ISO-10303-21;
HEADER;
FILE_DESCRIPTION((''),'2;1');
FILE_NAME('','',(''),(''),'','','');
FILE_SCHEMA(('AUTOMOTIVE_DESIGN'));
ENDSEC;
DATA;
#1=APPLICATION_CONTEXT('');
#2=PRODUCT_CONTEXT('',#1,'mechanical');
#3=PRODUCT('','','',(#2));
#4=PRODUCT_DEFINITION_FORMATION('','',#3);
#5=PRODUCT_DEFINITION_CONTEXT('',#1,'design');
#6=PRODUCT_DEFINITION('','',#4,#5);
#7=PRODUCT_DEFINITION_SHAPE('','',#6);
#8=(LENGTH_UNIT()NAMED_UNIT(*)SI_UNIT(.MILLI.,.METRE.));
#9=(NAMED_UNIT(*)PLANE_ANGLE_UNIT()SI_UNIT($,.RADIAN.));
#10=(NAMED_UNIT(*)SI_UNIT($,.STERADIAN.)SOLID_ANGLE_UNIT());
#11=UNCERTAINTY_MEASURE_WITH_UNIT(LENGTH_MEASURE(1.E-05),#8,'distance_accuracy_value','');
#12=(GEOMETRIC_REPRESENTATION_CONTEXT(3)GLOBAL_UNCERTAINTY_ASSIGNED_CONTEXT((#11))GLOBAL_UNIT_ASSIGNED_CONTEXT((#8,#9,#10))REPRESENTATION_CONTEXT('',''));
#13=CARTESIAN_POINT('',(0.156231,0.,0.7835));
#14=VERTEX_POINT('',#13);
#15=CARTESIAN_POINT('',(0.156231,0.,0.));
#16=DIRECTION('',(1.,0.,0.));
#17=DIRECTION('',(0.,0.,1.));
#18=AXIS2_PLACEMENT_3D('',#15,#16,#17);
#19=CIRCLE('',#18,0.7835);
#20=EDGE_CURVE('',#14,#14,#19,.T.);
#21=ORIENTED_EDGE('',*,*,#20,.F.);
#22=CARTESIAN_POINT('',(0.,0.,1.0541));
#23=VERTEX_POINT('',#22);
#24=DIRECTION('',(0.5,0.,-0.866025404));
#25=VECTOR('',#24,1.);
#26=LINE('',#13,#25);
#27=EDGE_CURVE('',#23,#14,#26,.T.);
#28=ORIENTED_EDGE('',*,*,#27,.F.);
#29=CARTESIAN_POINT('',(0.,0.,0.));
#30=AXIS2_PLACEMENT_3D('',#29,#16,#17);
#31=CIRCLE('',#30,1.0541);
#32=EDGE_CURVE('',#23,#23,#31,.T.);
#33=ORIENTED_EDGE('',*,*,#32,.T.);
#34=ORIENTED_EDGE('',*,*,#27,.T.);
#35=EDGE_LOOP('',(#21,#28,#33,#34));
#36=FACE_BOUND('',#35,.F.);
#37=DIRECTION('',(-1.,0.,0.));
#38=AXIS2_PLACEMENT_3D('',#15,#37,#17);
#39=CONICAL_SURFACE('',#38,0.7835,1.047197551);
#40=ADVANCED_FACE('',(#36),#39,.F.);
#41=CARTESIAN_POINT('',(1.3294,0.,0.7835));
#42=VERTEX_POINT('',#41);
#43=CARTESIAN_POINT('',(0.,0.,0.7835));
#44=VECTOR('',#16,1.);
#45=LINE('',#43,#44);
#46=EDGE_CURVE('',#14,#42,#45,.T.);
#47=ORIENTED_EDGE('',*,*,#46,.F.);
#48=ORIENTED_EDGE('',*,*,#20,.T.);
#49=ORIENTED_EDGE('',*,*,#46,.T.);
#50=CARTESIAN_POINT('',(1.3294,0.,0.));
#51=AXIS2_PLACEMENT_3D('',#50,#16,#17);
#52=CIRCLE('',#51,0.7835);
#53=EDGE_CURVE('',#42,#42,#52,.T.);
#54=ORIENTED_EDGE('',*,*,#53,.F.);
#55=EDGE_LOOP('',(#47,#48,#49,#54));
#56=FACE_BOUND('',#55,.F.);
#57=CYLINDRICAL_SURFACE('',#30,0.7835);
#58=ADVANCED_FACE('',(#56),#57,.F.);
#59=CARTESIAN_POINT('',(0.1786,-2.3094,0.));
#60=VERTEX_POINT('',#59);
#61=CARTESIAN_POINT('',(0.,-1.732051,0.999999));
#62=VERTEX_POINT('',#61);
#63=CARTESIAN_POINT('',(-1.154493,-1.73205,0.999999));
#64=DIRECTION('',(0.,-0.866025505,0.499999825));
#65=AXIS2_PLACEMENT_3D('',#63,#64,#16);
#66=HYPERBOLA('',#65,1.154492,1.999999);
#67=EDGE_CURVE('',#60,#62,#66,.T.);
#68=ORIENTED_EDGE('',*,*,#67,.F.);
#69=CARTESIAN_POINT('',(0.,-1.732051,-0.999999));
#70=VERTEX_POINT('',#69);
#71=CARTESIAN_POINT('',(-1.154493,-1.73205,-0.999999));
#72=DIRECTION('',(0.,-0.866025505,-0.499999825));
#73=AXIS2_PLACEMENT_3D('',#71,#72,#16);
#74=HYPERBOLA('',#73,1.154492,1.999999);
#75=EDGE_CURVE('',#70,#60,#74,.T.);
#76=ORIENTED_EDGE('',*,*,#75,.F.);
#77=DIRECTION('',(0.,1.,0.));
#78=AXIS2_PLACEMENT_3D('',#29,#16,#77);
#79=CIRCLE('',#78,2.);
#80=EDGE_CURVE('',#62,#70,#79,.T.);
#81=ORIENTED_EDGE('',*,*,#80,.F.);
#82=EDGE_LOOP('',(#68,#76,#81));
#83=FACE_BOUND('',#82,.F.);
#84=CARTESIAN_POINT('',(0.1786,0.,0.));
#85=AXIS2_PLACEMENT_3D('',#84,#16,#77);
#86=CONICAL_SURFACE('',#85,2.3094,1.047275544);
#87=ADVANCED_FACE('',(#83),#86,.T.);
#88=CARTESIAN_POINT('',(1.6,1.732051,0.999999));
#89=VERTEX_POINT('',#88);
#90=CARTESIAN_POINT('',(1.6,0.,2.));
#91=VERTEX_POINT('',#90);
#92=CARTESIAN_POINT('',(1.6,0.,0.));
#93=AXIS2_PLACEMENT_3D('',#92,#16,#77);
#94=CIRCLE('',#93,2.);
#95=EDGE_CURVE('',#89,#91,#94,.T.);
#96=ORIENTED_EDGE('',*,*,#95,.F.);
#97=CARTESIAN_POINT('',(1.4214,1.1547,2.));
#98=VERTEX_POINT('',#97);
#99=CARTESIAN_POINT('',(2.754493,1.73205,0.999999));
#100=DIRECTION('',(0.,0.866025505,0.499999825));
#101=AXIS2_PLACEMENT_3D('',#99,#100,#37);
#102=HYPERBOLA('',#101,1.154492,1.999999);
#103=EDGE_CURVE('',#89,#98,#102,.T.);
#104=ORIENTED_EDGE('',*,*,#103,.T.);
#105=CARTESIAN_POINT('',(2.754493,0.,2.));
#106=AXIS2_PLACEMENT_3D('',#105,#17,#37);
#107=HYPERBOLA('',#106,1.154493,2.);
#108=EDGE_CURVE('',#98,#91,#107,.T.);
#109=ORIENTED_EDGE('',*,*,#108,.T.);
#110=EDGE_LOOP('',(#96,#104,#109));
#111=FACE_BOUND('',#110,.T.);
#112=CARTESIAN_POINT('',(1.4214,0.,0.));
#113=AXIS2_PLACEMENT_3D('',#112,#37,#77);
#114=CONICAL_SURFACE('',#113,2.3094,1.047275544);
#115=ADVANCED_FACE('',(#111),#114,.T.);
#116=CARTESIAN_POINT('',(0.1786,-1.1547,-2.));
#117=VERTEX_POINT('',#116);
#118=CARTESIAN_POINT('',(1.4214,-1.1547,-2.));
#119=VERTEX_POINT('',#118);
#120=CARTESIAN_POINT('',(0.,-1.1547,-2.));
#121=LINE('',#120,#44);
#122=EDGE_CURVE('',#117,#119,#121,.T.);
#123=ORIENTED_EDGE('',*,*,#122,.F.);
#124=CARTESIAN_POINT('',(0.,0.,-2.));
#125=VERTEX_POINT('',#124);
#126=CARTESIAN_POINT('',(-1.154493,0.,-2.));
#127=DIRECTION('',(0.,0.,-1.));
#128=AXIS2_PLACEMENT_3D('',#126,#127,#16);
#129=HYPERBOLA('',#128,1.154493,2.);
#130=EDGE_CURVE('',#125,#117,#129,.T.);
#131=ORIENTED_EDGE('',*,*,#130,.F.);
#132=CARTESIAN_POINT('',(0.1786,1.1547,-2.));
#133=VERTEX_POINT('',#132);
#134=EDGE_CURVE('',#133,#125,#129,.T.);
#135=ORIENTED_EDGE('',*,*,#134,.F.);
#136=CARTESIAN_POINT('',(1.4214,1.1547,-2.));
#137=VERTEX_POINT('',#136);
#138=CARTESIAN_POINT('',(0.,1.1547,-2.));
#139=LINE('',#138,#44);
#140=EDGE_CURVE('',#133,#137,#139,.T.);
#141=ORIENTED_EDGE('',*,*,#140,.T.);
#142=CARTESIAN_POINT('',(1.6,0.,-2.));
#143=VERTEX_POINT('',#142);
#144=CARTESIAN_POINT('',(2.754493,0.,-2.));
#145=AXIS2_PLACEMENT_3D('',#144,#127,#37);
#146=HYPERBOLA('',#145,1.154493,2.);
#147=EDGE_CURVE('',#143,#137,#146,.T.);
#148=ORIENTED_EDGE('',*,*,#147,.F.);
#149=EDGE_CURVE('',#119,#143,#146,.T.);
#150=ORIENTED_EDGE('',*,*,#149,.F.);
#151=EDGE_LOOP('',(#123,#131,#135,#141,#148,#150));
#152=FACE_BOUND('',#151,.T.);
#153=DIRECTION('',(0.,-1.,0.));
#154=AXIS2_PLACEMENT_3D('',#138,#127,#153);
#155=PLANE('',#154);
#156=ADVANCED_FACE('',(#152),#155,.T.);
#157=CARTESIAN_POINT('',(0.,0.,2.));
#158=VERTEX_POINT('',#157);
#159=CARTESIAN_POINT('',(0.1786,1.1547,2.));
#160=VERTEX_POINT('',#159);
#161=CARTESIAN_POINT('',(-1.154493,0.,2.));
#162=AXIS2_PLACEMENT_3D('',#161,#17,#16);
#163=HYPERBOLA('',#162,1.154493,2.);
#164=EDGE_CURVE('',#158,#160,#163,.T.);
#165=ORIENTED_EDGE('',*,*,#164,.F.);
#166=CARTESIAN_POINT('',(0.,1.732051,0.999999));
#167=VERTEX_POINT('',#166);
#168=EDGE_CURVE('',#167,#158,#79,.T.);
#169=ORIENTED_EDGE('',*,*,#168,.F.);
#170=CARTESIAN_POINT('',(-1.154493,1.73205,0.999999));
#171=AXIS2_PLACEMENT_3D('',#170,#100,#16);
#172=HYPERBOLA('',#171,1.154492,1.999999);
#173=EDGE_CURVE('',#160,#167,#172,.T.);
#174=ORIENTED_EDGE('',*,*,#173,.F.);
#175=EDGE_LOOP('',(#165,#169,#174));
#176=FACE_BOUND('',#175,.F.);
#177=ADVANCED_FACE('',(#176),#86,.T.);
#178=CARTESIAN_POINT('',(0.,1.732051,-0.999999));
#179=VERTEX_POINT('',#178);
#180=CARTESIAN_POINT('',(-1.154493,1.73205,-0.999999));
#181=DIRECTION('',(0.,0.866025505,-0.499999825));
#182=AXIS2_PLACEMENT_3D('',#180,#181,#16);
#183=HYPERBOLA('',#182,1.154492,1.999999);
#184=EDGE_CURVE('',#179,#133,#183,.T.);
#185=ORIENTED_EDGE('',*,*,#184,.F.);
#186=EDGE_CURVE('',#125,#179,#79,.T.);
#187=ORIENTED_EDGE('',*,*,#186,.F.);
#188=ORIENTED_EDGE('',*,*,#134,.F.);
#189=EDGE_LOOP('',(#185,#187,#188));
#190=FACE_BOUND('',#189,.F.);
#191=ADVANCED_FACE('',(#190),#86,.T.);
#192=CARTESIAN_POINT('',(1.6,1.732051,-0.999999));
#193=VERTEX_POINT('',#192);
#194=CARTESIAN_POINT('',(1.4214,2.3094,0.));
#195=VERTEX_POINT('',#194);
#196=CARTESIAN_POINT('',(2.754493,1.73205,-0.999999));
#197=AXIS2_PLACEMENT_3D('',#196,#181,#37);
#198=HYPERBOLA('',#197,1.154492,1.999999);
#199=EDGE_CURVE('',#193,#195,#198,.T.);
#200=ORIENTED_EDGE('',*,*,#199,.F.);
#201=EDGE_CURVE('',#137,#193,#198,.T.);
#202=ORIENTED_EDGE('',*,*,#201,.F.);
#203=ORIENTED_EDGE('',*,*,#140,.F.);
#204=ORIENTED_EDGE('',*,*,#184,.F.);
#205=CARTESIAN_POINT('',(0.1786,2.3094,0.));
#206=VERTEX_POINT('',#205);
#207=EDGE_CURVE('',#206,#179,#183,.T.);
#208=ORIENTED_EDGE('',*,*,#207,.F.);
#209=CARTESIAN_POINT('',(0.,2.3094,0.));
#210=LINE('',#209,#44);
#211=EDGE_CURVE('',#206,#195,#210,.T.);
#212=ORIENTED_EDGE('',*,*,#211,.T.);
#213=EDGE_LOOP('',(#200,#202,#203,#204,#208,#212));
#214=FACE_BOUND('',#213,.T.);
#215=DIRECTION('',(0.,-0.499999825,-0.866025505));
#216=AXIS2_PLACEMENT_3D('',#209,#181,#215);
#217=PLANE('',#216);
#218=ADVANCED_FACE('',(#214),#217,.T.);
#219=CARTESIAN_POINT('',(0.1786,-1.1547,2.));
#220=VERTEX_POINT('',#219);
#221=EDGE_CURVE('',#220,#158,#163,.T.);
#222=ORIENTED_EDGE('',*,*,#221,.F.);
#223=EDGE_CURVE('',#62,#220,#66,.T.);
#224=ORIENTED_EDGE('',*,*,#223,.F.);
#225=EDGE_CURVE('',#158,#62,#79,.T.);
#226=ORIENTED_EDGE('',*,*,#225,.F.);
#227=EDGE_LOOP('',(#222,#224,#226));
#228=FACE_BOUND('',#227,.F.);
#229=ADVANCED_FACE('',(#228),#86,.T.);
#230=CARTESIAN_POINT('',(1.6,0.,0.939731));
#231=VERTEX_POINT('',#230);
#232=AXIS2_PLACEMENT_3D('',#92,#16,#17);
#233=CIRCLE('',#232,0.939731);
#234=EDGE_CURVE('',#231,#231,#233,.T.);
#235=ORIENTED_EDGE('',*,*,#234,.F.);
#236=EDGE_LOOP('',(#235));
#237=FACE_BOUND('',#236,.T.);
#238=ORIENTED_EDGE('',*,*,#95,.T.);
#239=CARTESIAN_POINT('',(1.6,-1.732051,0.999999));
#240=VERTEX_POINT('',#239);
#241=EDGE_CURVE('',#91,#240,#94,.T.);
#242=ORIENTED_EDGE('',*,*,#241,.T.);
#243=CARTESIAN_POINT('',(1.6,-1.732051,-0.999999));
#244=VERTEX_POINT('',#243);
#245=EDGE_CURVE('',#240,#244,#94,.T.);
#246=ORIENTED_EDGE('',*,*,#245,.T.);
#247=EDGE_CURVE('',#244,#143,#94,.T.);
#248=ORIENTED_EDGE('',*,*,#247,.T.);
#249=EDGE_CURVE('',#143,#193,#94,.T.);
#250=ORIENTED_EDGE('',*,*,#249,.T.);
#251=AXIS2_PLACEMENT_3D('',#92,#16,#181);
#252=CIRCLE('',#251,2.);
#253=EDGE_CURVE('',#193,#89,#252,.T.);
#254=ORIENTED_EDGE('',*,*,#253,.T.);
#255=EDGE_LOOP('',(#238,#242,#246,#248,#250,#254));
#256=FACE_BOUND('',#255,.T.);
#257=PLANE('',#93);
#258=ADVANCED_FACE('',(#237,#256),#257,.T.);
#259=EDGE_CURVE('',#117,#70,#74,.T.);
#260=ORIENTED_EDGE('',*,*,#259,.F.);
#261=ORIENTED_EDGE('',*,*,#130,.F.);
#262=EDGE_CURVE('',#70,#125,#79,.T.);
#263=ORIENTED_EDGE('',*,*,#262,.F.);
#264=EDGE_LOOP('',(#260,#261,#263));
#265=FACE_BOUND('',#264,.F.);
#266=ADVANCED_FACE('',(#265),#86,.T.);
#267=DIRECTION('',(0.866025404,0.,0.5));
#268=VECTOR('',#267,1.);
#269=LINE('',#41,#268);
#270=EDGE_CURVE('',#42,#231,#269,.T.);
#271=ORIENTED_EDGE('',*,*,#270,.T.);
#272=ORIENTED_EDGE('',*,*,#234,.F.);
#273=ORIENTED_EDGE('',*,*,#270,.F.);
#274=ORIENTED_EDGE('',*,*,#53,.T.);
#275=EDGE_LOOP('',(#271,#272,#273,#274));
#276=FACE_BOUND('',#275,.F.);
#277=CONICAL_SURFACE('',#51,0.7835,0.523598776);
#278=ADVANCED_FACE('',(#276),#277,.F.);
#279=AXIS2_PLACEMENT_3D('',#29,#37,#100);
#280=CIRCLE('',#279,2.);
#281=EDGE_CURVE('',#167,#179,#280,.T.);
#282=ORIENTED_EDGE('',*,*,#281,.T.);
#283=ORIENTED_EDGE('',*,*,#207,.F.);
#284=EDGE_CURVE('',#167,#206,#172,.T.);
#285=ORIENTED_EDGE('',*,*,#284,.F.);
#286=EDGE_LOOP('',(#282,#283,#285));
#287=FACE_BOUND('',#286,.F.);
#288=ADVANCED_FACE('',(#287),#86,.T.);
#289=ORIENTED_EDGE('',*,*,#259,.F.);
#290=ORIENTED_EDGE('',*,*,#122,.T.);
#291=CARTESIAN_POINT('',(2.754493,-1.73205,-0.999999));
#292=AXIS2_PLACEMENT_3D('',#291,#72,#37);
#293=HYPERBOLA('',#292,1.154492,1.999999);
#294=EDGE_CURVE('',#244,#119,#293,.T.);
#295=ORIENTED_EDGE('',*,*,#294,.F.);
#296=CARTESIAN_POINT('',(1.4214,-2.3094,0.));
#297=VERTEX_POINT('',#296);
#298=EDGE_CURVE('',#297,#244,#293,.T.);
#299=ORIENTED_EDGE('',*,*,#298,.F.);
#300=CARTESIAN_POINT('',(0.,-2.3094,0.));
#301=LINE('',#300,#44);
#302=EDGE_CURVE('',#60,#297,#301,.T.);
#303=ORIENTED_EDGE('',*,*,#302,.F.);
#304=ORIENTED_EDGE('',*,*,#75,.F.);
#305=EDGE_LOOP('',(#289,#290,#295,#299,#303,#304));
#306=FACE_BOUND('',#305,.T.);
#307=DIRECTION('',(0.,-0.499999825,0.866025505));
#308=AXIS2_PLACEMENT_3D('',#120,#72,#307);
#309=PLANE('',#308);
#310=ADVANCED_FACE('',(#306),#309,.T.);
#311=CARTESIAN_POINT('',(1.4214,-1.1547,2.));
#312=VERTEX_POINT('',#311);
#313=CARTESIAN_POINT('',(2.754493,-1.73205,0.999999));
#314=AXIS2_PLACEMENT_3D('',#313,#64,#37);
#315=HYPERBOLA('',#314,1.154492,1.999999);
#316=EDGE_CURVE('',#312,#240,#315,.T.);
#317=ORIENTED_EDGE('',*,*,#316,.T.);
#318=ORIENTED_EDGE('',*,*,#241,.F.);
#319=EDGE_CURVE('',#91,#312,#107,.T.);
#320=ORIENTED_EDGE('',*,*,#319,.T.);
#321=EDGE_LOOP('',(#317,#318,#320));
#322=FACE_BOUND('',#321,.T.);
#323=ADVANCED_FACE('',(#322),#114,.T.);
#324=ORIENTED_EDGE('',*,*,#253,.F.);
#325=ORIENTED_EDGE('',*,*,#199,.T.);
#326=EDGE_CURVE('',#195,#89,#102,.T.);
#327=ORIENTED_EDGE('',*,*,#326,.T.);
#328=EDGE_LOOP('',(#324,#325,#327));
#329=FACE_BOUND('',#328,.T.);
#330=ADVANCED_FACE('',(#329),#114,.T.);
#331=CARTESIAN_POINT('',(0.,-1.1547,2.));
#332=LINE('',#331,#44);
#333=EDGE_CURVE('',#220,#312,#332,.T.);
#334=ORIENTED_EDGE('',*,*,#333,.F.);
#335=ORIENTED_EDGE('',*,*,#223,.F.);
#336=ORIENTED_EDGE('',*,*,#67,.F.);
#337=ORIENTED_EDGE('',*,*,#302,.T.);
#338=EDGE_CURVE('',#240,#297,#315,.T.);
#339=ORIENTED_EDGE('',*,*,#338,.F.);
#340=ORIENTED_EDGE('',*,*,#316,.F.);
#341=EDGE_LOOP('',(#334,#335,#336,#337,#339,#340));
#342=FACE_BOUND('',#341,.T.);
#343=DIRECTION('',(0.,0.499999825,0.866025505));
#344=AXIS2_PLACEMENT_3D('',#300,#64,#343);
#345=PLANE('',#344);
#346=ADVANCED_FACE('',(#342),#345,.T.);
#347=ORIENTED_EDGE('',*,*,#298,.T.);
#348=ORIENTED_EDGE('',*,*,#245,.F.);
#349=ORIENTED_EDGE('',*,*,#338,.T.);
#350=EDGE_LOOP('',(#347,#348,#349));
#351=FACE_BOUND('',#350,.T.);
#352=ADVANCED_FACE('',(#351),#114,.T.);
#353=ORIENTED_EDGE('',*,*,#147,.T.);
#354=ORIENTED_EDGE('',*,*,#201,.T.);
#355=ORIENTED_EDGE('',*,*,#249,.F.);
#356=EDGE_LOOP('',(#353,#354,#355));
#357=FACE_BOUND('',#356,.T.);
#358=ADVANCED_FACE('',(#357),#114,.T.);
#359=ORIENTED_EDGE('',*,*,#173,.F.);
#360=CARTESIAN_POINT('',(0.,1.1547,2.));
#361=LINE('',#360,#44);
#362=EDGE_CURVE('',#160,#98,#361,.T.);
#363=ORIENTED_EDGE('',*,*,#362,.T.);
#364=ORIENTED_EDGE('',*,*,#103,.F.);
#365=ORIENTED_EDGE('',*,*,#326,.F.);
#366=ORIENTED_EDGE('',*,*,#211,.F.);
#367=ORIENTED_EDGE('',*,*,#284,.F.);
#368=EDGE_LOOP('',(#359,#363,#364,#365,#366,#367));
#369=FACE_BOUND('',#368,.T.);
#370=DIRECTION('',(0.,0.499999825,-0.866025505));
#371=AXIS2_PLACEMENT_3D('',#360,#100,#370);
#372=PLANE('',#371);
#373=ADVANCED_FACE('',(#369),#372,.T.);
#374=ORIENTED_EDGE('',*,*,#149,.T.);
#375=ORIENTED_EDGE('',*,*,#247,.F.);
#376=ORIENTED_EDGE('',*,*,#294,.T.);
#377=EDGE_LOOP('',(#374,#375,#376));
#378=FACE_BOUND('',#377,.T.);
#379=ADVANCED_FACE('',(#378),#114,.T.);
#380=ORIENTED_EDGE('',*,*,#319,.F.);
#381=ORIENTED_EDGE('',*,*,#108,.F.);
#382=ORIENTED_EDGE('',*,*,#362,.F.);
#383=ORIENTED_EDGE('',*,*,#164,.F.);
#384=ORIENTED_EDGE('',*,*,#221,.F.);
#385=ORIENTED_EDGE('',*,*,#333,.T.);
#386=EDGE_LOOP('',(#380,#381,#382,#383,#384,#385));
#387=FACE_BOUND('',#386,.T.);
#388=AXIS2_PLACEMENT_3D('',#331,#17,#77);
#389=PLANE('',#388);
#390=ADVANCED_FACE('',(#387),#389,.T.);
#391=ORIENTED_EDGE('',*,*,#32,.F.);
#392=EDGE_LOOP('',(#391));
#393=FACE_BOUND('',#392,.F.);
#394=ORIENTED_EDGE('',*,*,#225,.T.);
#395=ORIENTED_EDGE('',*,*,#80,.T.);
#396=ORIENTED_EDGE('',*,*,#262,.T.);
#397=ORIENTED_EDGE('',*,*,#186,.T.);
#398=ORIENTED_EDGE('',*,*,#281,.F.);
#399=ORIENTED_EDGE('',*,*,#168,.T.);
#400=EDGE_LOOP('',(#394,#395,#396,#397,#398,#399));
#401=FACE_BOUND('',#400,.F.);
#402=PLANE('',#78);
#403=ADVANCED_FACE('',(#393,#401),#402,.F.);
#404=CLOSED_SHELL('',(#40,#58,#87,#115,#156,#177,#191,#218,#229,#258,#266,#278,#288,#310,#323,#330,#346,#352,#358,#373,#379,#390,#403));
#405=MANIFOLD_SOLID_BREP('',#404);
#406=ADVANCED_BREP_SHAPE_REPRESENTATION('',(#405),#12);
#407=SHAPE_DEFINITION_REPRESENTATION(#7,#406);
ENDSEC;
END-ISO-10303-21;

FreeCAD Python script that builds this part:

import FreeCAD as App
import Part
import Sketcher

V = App.Vector
Q = App.Units.Quantity


def edges_at(feature, points):
    """Names of the edges that pass closest to the given points."""
    edges = feature.Shape.Edges
    near = lambda p: min(range(len(edges)), key=lambda i: edges[i].distToShape(Part.Vertex(*p))[0])
    return sorted({f"Edge{near(p) + 1}" for p in points})

doc = App.newDocument("Part")
params = doc.addObject("Spreadsheet::Sheet", "Params")
for row, (alias, value) in enumerate([
    ("pad1_length", "0.0629921 in"),
    ("hole_diameter", "0.0616929 in"),
    ("chamfer_size", "0.2706 mm"),
    ("chamfer2_size", "0.2706 mm"),
    ("groove_angle", "360 deg"),
], start=1):
    params.set(f"A{row}", alias)
    params.set(f"B{row}", "=" + value)
    params.setAlias(f"B{row}", alias)

body = doc.addObject("PartDesign::Body", "Body")

# Sketch on YZ plane
sketch1 = body.newObject("Sketcher::SketchObject", "Sketch")
sketch1.AttachmentSupport = (doc.getObject("YZ_Plane"), [""])
sketch1.MapMode = "FlatFace"
sketch1.addGeometry([
    Part.LineSegment(V(1.2, -2, 0), V(2.3, 0, 0)),  # 0
    Part.LineSegment(V(2.3, 0, 0), V(1.2, 2, 0)),  # 1
    Part.LineSegment(V(1.2, 2, 0), V(-1.2, 2, 0)),  # 2
    Part.LineSegment(V(-1.2, 2, 0), V(-2.3, 0, 0)),  # 3
    Part.LineSegment(V(-2.3, 0, 0), V(-1.2, -2, 0)),  # 4
    Part.LineSegment(V(-1.2, -2, 0), V(1.2, -2, 0)),  # 5
], False)
sketch1.addConstraint([
    Sketcher.Constraint("Coincident", 0, 2, 1, 1),
    Sketcher.Constraint("Coincident", 1, 2, 2, 1),
    Sketcher.Constraint("Coincident", 2, 2, 3, 1),
    Sketcher.Constraint("Coincident", 3, 2, 4, 1),
    Sketcher.Constraint("Coincident", 4, 2, 5, 1),
    Sketcher.Constraint("Coincident", 5, 2, 0, 1),
    Sketcher.Constraint("Horizontal", 2),
    Sketcher.Constraint("Horizontal", 5),
    Sketcher.Constraint("Symmetric", 0, 2, 3, 2, -1, 1),
    Sketcher.Constraint("Symmetric", 1, 2, 4, 2, -1, 1),
    Sketcher.Constraint("PointOnObject", 0, 2, -1),
    Sketcher.Constraint("Parallel", 0, 3),
    Sketcher.Constraint("Vertical", 2, 2, 4, 2),
    Sketcher.Constraint("Angle", 0, Q("60 deg")),
    Sketcher.Constraint("DistanceX", 3, 2, 0, 2, Q("4.6188 mm")),
    Sketcher.Constraint("DistanceX", 2, 2, 2, 1, Q("2.3094 mm")),
])
pad1 = body.newObject("PartDesign::Pad", "Pad")
pad1.Profile = sketch1
pad1.setExpression("Length", "Params.pad1_length")

# Sketch on YZ plane
sketch2 = body.newObject("Sketcher::SketchObject", "Sketch001")
sketch2.AttachmentSupport = (doc.getObject("YZ_Plane"), [""])
sketch2.MapMode = "FlatFace"
sketch2.addGeometry(Part.Circle(V(0, 0, 0), V(0, 0, 1), 0.8), False)
sketch2.addConstraint([
    Sketcher.Constraint("Coincident", 0, 3, -1, 1),
    Sketcher.Constraint("Diameter", 0, Q("0.0617 in")),
])
doc.recompute()
hole = body.newObject("PartDesign::Hole", "Hole")
hole.Profile = sketch2
hole.ThreadType = "None"
hole.setExpression("Diameter", "Params.hole_diameter")
hole.DepthType = "ThroughAll"
hole.Reversed = True
doc.recompute()

chamfer = body.newObject("PartDesign::Chamfer", "Chamfer")
chamfer.Base = (hole, edges_at(hole, [(0, 0, -0.783)]))
chamfer.ChamferType = "Distance and Angle"
chamfer.setExpression("Size", "Params.chamfer_size")
chamfer.Angle = 30
doc.recompute()

chamfer2 = body.newObject("PartDesign::Chamfer", "Chamfer001")
chamfer2.Base = (chamfer, edges_at(chamfer, [(1.6, 0, -0.783)]))
chamfer2.ChamferType = "Distance and Angle"
chamfer2.setExpression("Size", "Params.chamfer2_size")
chamfer2.Angle = 30

# Sketch on XY plane
sketch3 = body.newObject("Sketcher::SketchObject", "Sketch002")
sketch3.AttachmentSupport = (doc.getObject("XY_Plane"), [""])
sketch3.MapMode = "FlatFace"
sketch3.addGeometry([
    Part.LineSegment(V(1.6, 2.31, 0), V(1.42, 2.31, 0)),
    Part.LineSegment(V(1.42, 2.31, 0), V(1.6, 2, 0)),
    Part.LineSegment(V(1.6, 2, 0), V(1.6, 2.31, 0)),
], False)
sketch3.addConstraint([
    Sketcher.Constraint("Coincident", 0, 2, 1, 1),
    Sketcher.Constraint("Coincident", 1, 2, 2, 1),
    Sketcher.Constraint("Coincident", 2, 2, 0, 1),
    Sketcher.Constraint("Horizontal", 0),
    Sketcher.Constraint("Vertical", 2),
    Sketcher.Constraint("DistanceX", -1, 1, 1, 2, Q("0.063 in")),
    Sketcher.Constraint("DistanceX", 0, 2, 0, 1, Q("0.1786 mm")),
    Sketcher.Constraint("DistanceY", 2, 1, 2, 2, Q("0.3094 mm")),
    Sketcher.Constraint("DistanceY", -1, 1, 0, 2, Q("2.3094 mm")),
])
groove = body.newObject("PartDesign::Groove", "Groove")
groove.Profile = sketch3
groove.ReferenceAxis = (sketch3, ["H_Axis"])
groove.setExpression("Angle", "Params.groove_angle")
doc.recompute()

datumplane = body.newObject("PartDesign::Plane", "DatumPlane")
datumplane.AttachmentSupport = (doc.getObject("YZ_Plane"), [""])
datumplane.MapMode = "FlatFace"
datumplane.AttachmentOffset = App.Placement(V(0, 0, 0.0314961 * 25.4), App.Rotation())
mirrored = body.newObject("PartDesign::Mirrored", "Mirrored")
mirrored.Originals = [groove]
mirrored.MirrorPlane = (datumplane, [""])
body.Tip = mirrored

doc.recompute()
